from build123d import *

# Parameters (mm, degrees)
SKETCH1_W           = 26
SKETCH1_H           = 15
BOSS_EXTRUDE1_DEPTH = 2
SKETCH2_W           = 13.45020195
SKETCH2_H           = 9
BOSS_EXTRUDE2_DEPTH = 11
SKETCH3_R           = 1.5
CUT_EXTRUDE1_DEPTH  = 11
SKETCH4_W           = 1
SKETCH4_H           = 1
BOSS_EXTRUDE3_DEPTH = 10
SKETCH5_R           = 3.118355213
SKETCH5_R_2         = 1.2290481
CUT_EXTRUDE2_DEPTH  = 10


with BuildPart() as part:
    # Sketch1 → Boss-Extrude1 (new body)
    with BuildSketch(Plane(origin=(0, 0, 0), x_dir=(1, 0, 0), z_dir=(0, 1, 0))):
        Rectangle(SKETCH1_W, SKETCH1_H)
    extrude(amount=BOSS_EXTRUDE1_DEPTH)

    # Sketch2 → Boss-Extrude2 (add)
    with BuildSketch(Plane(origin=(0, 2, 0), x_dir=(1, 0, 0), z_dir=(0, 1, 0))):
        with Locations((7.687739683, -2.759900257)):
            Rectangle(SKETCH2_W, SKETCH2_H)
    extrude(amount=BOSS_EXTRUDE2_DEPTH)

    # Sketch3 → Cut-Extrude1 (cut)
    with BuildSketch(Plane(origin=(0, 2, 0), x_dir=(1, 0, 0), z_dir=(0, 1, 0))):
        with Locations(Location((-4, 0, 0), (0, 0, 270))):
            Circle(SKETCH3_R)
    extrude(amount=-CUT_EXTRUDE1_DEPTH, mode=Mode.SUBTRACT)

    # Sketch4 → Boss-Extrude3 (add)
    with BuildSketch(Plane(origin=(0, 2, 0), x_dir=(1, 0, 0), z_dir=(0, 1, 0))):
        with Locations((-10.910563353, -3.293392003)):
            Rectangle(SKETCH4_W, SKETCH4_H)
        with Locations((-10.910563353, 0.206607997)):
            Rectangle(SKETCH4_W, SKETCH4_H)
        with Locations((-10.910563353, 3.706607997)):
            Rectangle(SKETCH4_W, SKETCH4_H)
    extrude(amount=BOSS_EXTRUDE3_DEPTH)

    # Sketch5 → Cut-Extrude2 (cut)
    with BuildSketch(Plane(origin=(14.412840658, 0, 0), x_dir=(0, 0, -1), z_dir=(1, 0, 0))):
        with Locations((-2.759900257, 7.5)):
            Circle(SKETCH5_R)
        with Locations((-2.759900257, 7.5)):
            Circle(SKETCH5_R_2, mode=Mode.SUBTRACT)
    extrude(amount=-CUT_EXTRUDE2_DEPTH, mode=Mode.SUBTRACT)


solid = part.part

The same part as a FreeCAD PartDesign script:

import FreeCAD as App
import Part
import Sketcher

V = App.Vector
Q = App.Units.Quantity

doc = App.newDocument("Part")
params = doc.addObject("Spreadsheet::Sheet", "Params")
for row, (alias, value) in enumerate([
    ("sketch1_width", "26 mm"),
    ("sketch1_height", "15 mm"),
    ("pad1_length", "2 mm"),
    ("sketch2_height", "9 mm"),
    ("pad2_length", "11 mm"),
    ("sketch3_diameter", "3 mm"),
    ("pocket1_length", "11 mm"),
    ("sketch4_width", "1 mm"),
    ("pad3_length", "10 mm"),
    ("pocket2_length", "10 mm"),
], start=1):
    params.set(f"A{row}", alias)
    params.set(f"B{row}", "=" + value)
    params.setAlias(f"B{row}", alias)

body = doc.addObject("PartDesign::Body", "Body")

# Sketch on XZ plane
sketch1 = body.newObject("Sketcher::SketchObject", "Sketch")
sketch1.AttachmentSupport = (doc.getObject("XZ_Plane"), [""])
sketch1.MapMode = "FlatFace"
sketch1.addGeometry(Part.LineSegment(V(-13, -8, 0), V(-13, 8, 0)), False)
sketch1.addGeometry(Part.LineSegment(V(-13, 8, 0), V(13, 8, 0)), False)
sketch1.addGeometry(Part.LineSegment(V(13, 8, 0), V(13, -8, 0)), False)
sketch1.addGeometry(Part.LineSegment(V(13, -8, 0), V(-13, -8, 0)), False)
sketch1.addConstraint(Sketcher.Constraint("Coincident", 0, 2, 1, 1))
sketch1.addConstraint(Sketcher.Constraint("Coincident", 1, 2, 2, 1))
sketch1.addConstraint(Sketcher.Constraint("Coincident", 2, 2, 3, 1))
sketch1.addConstraint(Sketcher.Constraint("Coincident", 3, 2, 0, 1))
sketch1.addConstraint(Sketcher.Constraint("Vertical", 0))
sketch1.addConstraint(Sketcher.Constraint("Horizontal", 1))
sketch1.addConstraint(Sketcher.Constraint("Vertical", 2))
sketch1.addConstraint(Sketcher.Constraint("Horizontal", 3))
sketch1.addConstraint(Sketcher.Constraint("Symmetric", 0, 2, 2, 2, -1, 1))
sketch1.addConstraint(Sketcher.Constraint("DistanceX", 1, 1, 1, 2, Q("26 mm")))
sketch1.addConstraint(Sketcher.Constraint("DistanceY", 0, 1, 0, 2, Q("15 mm")))
sketch1.setExpression("Constraints[9]", "Params.sketch1_width")
sketch1.setExpression("Constraints[10]", "Params.sketch1_height")
pad1 = body.newObject("PartDesign::Pad", "Pad")
pad1.Profile = sketch1
pad1.setExpression("Length", "Params.pad1_length")
pad1.Reversed = True

# Sketch on XZ plane
sketch2 = body.newObject("Sketcher::SketchObject", "Sketch001")
sketch2.AttachmentSupport = (doc.getObject("XZ_Plane"), [""])
sketch2.MapMode = "FlatFace"
sketch2.AttachmentOffset = App.Placement(V(0, 0, -2), App.Rotation())
sketch2.addGeometry(Part.LineSegment(V(1, -2, 0), V(1, 7, 0)), False)
sketch2.addGeometry(Part.LineSegment(V(1, 7, 0), V(14, 7, 0)), False)
sketch2.addGeometry(Part.LineSegment(V(14, 7, 0), V(14, -2, 0)), False)
sketch2.addGeometry(Part.LineSegment(V(14, -2, 0), V(1, -2, 0)), False)
sketch2.addConstraint(Sketcher.Constraint("Coincident", 0, 2, 1, 1))
sketch2.addConstraint(Sketcher.Constraint("Coincident", 1, 2, 2, 1))
sketch2.addConstraint(Sketcher.Constraint("Coincident", 2, 2, 3, 1))
sketch2.addConstraint(Sketcher.Constraint("Coincident", 3, 2, 0, 1))
sketch2.addConstraint(Sketcher.Constraint("Vertical", 0))
sketch2.addConstraint(Sketcher.Constraint("Horizontal", 1))
sketch2.addConstraint(Sketcher.Constraint("Vertical", 2))
sketch2.addConstraint(Sketcher.Constraint("Horizontal", 3))
sketch2.addConstraint(Sketcher.Constraint("DistanceY", 0, 1, 0, 2, Q("9 mm")))
sketch2.addConstraint(Sketcher.Constraint("DistanceX", 1, 1, 1, 2, Q("13.450202 mm")))
sketch2.addConstraint(Sketcher.Constraint("DistanceY", -1, 1, 0, 2, Q("7.2599 mm")))
sketch2.addConstraint(Sketcher.Constraint("DistanceX", -1, 1, 0, 2, Q("0.962639 mm")))
sketch2.setExpression("Constraints[8]", "Params.sketch2_height")
pad2 = body.newObject("PartDesign::Pad", "Pad001")
pad2.Profile = sketch2
pad2.setExpression("Length", "Params.pad2_length")
pad2.Reversed = True

# Sketch on XZ plane
sketch3 = body.newObject("Sketcher::SketchObject", "Sketch002")
sketch3.AttachmentSupport = (doc.getObject("XZ_Plane"), [""])
sketch3.MapMode = "FlatFace"
sketch3.AttachmentOffset = App.Placement(V(0, 0, -2), App.Rotation())
sketch3.addGeometry(Part.Circle(V(-4, 0, 0), V(0, 0, 1), 1.5), False)
sketch3.addConstraint(Sketcher.Constraint("PointOnObject", 0, 3, -1))
sketch3.addConstraint(Sketcher.Constraint("Diameter", 0, Q("3 mm")))
sketch3.addConstraint(Sketcher.Constraint("DistanceX", 0, 3, -1, 1, Q("4 mm")))
sketch3.setExpression("Constraints[1]", "Params.sketch3_diameter")
pocket1 = body.newObject("PartDesign::Pocket", "Pocket")
pocket1.Profile = sketch3
pocket1.setExpression("Length", "Params.pocket1_length")
pocket1.Reversed = True

# Sketch on XZ plane
sketch4 = body.newObject("Sketcher::SketchObject", "Sketch003")
sketch4.AttachmentSupport = (doc.getObject("XZ_Plane"), [""])
sketch4.MapMode = "FlatFace"
sketch4.AttachmentOffset = App.Placement(V(0, 0, -2), App.Rotation())
sketch4.addGeometry(Part.LineSegment(V(-11.4, 2.8, 0), V(-11.4, 3.8, 0)), False)
sketch4.addGeometry(Part.LineSegment(V(-11.4, 3.8, 0), V(-10.4, 3.8, 0)), False)
sketch4.addGeometry(Part.LineSegment(V(-10.4, 3.8, 0), V(-10.4, 2.8, 0)), False)
sketch4.addGeometry(Part.LineSegment(V(-10.4, 2.8, 0), V(-11.4, 2.8, 0)), False)
sketch4.addGeometry(Part.LineSegment(V(-11.4, -0.7, 0), V(-11.4, 0.3, 0)), False)
sketch4.addGeometry(Part.LineSegment(V(-11.4, 0.3, 0), V(-10.4, 0.3, 0)), False)
sketch4.addGeometry(Part.LineSegment(V(-10.4, 0.3, 0), V(-10.4, -0.7, 0)), False)
sketch4.addGeometry(Part.LineSegment(V(-10.4, -0.7, 0), V(-11.4, -0.7, 0)), False)
sketch4.addGeometry(Part.LineSegment(V(-11.4, -4.2, 0), V(-11.4, -3.2, 0)), False)
sketch4.addGeometry(Part.LineSegment(V(-11.4, -3.2, 0), V(-10.4, -3.2, 0)), False)
sketch4.addGeometry(Part.LineSegment(V(-10.4, -3.2, 0), V(-10.4, -4.2, 0)), False)
sketch4.addGeometry(Part.LineSegment(V(-10.4, -4.2, 0), V(-11.4, -4.2, 0)), False)
sketch4.addConstraint(Sketcher.Constraint("Coincident", 0, 2, 1, 1))
sketch4.addConstraint(Sketcher.Constraint("Coincident", 1, 2, 2, 1))
sketch4.addConstraint(Sketcher.Constraint("Coincident", 2, 2, 3, 1))
sketch4.addConstraint(Sketcher.Constraint("Coincident", 3, 2, 0, 1))
sketch4.addConstraint(Sketcher.Constraint("Coincident", 4, 2, 5, 1))
sketch4.addConstraint(Sketcher.Constraint("Coincident", 5, 2, 6, 1))
sketch4.addConstraint(Sketcher.Constraint("Coincident", 6, 2, 7, 1))
sketch4.addConstraint(Sketcher.Constraint("Coincident", 7, 2, 4, 1))
sketch4.addConstraint(Sketcher.Constraint("Coincident", 8, 2, 9, 1))
sketch4.addConstraint(Sketcher.Constraint("Coincident", 9, 2, 10, 1))
sketch4.addConstraint(Sketcher.Constraint("Coincident", 10, 2, 11, 1))
sketch4.addConstraint(Sketcher.Constraint("Coincident", 11, 2, 8, 1))
sketch4.addConstraint(Sketcher.Constraint("Vertical", 0))
sketch4.addConstraint(Sketcher.Constraint("Horizontal", 1))
sketch4.addConstraint(Sketcher.Constraint("Vertical", 2))
sketch4.addConstraint(Sketcher.Constraint("Horizontal", 3))
sketch4.addConstraint(Sketcher.Constraint("Vertical", 4))
sketch4.addConstraint(Sketcher.Constraint("Horizontal", 5))
sketch4.addConstraint(Sketcher.Constraint("Vertical", 6))
sketch4.addConstraint(Sketcher.Constraint("Horizontal", 7))
sketch4.addConstraint(Sketcher.Constraint("Vertical", 8))
sketch4.addConstraint(Sketcher.Constraint("Horizontal", 9))
sketch4.addConstraint(Sketcher.Constraint("Vertical", 10))
sketch4.addConstraint(Sketcher.Constraint("Horizontal", 11))
sketch4.addConstraint(Sketcher.Constraint("Vertical", 3, 2, 4, 2))
sketch4.addConstraint(Sketcher.Constraint("Vertical", 2, 2, 5, 2))
sketch4.addConstraint(Sketcher.Constraint("Vertical", 7, 2, 8, 2))
sketch4.addConstraint(Sketcher.Constraint("Vertical", 6, 2, 9, 2))
sketch4.addConstraint(Sketcher.Constraint("Equal", 11, 0))
sketch4.addConstraint(Sketcher.Constraint("Equal", 2, 4))
sketch4.addConstraint(Sketcher.Constraint("Equal", 6, 8))
sketch4.addConstraint(Sketcher.Constraint("DistanceX", 1, 1, 1, 2, Q("1 mm")))
sketch4.addConstraint(Sketcher.Constraint("DistanceY", 8, 2, 3, 2, Q("6 mm")))
sketch4.addConstraint(Sketcher.Constraint("DistanceY", 4, 2, 3, 2, Q("2.5 mm")))
sketch4.addConstraint(Sketcher.Constraint("DistanceX", 0, 2, -1, 1, Q("11.410563 mm")))
sketch4.addConstraint(Sketcher.Constraint("DistanceY", -1, 1, 0, 2, Q("3.793392 mm")))
sketch4.setExpression("Constraints[31]", "Params.sketch4_width")
pad3 = body.newObject("PartDesign::Pad", "Pad002")
pad3.Profile = sketch4
pad3.setExpression("Length", "Params.pad3_length")
pad3.Reversed = True

# Sketch on YZ plane
sketch5 = body.newObject("Sketcher::SketchObject", "Sketch004")
sketch5.AttachmentSupport = (doc.getObject("YZ_Plane"), [""])
sketch5.MapMode = "FlatFace"
sketch5.AttachmentOffset = App.Placement(V(0, 0, 14.412841), App.Rotation())
sketch5.addGeometry(Part.Circle(V(7.5, 2.8, 0), V(0, 0, 1), 3.1), False)
sketch5.addGeometry(Part.Circle(V(7.5, 2.8, 0), V(0, 0, 1), 1.2), False)
sketch5.addConstraint(Sketcher.Constraint("Coincident", 1, 3, 0, 3))
sketch5.addConstraint(Sketcher.Constraint("DistanceX", -1, 1, 0, 3, Q("7.5 mm")))
sketch5.addConstraint(Sketcher.Constraint("Diameter", 0, Q("6.23671 mm")))
sketch5.addConstraint(Sketcher.Constraint("Diameter", 1, Q("2.458096 mm")))
sketch5.addConstraint(Sketcher.Constraint("DistanceY", -1, 1, 0, 3, Q("2.7599 mm")))
pocket2 = body.newObject("PartDesign::Pocket", "Pocket001")
pocket2.Profile = sketch5
pocket2.setExpression("Length", "Params.pocket2_length")

doc.recompute()
